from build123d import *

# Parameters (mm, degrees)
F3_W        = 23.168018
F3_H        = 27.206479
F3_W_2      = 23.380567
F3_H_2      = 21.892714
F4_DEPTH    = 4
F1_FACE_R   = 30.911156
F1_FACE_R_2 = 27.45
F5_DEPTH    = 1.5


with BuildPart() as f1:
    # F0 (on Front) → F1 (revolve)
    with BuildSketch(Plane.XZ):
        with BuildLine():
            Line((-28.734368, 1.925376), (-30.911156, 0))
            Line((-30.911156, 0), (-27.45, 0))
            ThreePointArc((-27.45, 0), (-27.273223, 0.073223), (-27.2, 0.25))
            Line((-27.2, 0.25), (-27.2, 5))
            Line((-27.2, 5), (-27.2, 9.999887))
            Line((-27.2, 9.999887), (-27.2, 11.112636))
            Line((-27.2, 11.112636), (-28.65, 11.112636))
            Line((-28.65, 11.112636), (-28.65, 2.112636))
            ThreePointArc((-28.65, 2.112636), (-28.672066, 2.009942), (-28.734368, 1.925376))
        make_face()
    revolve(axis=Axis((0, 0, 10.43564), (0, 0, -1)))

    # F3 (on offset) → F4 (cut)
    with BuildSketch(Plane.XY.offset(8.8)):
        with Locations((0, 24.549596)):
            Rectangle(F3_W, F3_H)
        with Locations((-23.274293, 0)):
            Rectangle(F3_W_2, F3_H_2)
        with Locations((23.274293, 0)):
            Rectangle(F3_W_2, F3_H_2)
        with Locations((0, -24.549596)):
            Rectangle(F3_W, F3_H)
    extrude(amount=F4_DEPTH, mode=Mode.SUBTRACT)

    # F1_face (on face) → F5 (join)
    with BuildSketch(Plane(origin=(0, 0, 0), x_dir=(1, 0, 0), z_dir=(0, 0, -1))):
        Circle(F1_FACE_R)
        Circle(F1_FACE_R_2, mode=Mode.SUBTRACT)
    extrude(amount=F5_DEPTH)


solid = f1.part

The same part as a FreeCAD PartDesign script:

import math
import FreeCAD as App
import Part
import Sketcher
Q = App.Units.Quantity


def add_polygon(sketch, points):
    """Adds a closed chain of lines whose ends are joined by coincident constraints."""
    first, n = sketch.GeometryCount, len(points)
    for a, b in zip(points, points[1:] + points[:1]):
        sketch.addGeometry(Part.LineSegment(App.Vector(*a, 0), App.Vector(*b, 0)), False)
    for i in range(n):
        sketch.addConstraint(Sketcher.Constraint("Coincident", first + i, 2, first + (i + 1) % n, 1))

doc = App.newDocument("Part")
params = doc.addObject("Spreadsheet::Sheet", "Params")
for row, (alias, value) in enumerate([
    ("sketch1_height", "9 mm"),
    ("sketch1_radius", "0.249999 mm"),
    ("sketch1_width", "1.45 mm"),
    ("revolution_angle", "360 deg"),
    ("pocket1_length", "4 mm"),
    ("sketch3_diameter", "54.9 mm"),
    ("pad1_length", "1.5 mm"),
], start=1):
    params.set(f"A{row}", alias)
    params.set(f"B{row}", "=" + value)
    params.setAlias(f"B{row}", alias)

body = doc.addObject("PartDesign::Body", "Body")

sketch1 = body.newObject("Sketcher::SketchObject", "Sketch")
sketch1.AttachmentSupport = (doc.getObject("XZ_Plane"), [""])
sketch1.MapMode = "FlatFace"
sketch1.addGeometry([
    Part.LineSegment(App.Vector(-28.734368, 1.925376, 0), App.Vector(-30.911156, 0, 0)),
    Part.LineSegment(App.Vector(-30.911156, 0, 0), App.Vector(-27.45, 0, 0)),
    Part.ArcOfCircle(Part.Circle(App.Vector(-27.449999, 0.249999, 0), App.Vector(0, 0, 1), 0.249999), math.radians(-90.000238), math.radians(0.000238)),
    Part.LineSegment(App.Vector(-27.2, 0.25, 0), App.Vector(-27.2, 11.112636, 0)),
    Part.LineSegment(App.Vector(-27.2, 11.112636, 0), App.Vector(-28.65, 11.112636, 0)),
    Part.LineSegment(App.Vector(-28.65, 11.112636, 0), App.Vector(-28.65, 2.112636, 0)),
    Part.ArcOfCircle(Part.Circle(App.Vector(-28.900004, 2.112637, 0), App.Vector(0, 0, 1), 0.250004), math.radians(-48.506657), math.radians(-0.000222)),
], False)
sketch1.addConstraint([
    Sketcher.Constraint("Coincident", 0, 2, 1, 1),
    Sketcher.Constraint("Coincident", 1, 2, 2, 1),
    Sketcher.Constraint("Coincident", 2, 2, 3, 1),
    Sketcher.Constraint("Coincident", 3, 2, 4, 1),
    Sketcher.Constraint("Coincident", 4, 2, 5, 1),
    Sketcher.Constraint("Coincident", 5, 2, 6, 2),
    Sketcher.Constraint("Coincident", 6, 1, 0, 1),
    Sketcher.Constraint("Horizontal", 1),
    Sketcher.Constraint("Vertical", 3),
    Sketcher.Constraint("Horizontal", 4),
    Sketcher.Constraint("Vertical", 5),
    Sketcher.Constraint("PointOnObject", 0, 2, -1),
    Sketcher.Constraint("Horizontal", 6, 3, 5, 2),
    Sketcher.Constraint("Vertical", 2, 3, 1, 2),
    Sketcher.Constraint("DistanceY", 5, 2, 5, 1, Q("9 mm")),
    Sketcher.Constraint("Radius", 2, Q("0.249999 mm")),
    Sketcher.Constraint("DistanceX", 4, 2, 4, 1, Q("1.45 mm")),
    Sketcher.Constraint("DistanceX", 2, 2, -1, 1, Q("27.2 mm")),
    Sketcher.Constraint("DistanceY", -1, 1, 2, 2, Q("0.25 mm")),
    Sketcher.Constraint("Radius", 6, Q("0.250004 mm")),
    Sketcher.Constraint("Distance", 0, Q("2.906111 mm")),
    Sketcher.Constraint("DistanceX", 1, 1, 1, 2, Q("3.461156 mm")),
    Sketcher.Constraint("DistanceY", 3, 1, 3, 2, Q("10.862636 mm")),
])
sketch1.setExpression("Constraints[14]", "Params.sketch1_height")
sketch1.setExpression("Constraints[15]", "Params.sketch1_radius")
sketch1.setExpression("Constraints[16]", "Params.sketch1_width")
revolution = body.newObject("PartDesign::Revolution", "Revolution")
revolution.Profile = sketch1
revolution.ReferenceAxis = (sketch1, ["V_Axis"])
revolution.setExpression("Angle", "Params.revolution_angle")

sketch2 = body.newObject("Sketcher::SketchObject", "Sketch001")
sketch2.AttachmentSupport = (doc.getObject("XY_Plane"), [""])
sketch2.MapMode = "FlatFace"
sketch2.AttachmentOffset = App.Placement(App.Vector(0, 0, 8.8), App.Rotation())
add_polygon(sketch2, [(-11.584009, 38.152836), (-11.584009, 10.946357), (11.584009, 10.946357), (11.584009, 38.152836)])
add_polygon(sketch2, [(-34.964576, 10.946357), (-34.964576, -10.946357), (-11.58401, -10.946357), (-11.58401, 10.946357)])
add_polygon(sketch2, [(11.58401, 10.946357), (11.58401, -10.946357), (34.964576, -10.946357), (34.964576, 10.946357)])
add_polygon(sketch2, [(-11.584009, -10.946357), (-11.584009, -38.152836), (11.584009, -38.152836), (11.584009, -10.946357)])
sketch2.addConstraint([
    Sketcher.Constraint("Vertical", 0),
    Sketcher.Constraint("Horizontal", 1),
    Sketcher.Constraint("Vertical", 2),
    Sketcher.Constraint("Horizontal", 3),
    Sketcher.Constraint("Vertical", 4),
    Sketcher.Constraint("Horizontal", 5),
    Sketcher.Constraint("Vertical", 6),
    Sketcher.Constraint("Horizontal", 7),
    Sketcher.Constraint("Vertical", 8),
    Sketcher.Constraint("Horizontal", 9),
    Sketcher.Constraint("Vertical", 10),
    Sketcher.Constraint("Horizontal", 11),
    Sketcher.Constraint("Vertical", 12),
    Sketcher.Constraint("Horizontal", 13),
    Sketcher.Constraint("Vertical", 14),
    Sketcher.Constraint("Horizontal", 15),
    Sketcher.Constraint("Coincident", 6, 2, 0, 2),
    Sketcher.Constraint("Coincident", 11, 2, 1, 2),
    Sketcher.Constraint("Coincident", 14, 2, 8, 2),
    Sketcher.Constraint("Coincident", 15, 2, 5, 2),
    Sketcher.Constraint("Symmetric", 1, 2, 5, 2, -1, 1),
    Sketcher.Constraint("Equal", 7, 9),
    Sketcher.Constraint("Equal", 2, 12),
    Sketcher.Constraint("DistanceX", 1, 1, 1, 2, Q("23.168018 mm")),
    Sketcher.Constraint("DistanceY", 0, 2, 0, 1, Q("27.206479 mm")),
    Sketcher.Constraint("DistanceX", 5, 1, 5, 2, Q("23.380567 mm")),
    Sketcher.Constraint("DistanceY", 4, 2, 4, 1, Q("21.892714 mm")),
])
pocket1 = body.newObject("PartDesign::Pocket", "Pocket")
pocket1.Profile = sketch2
pocket1.setExpression("Length", "Params.pocket1_length")
pocket1.Reversed = True

sketch3 = body.newObject("Sketcher::SketchObject", "Sketch002")
sketch3.AttachmentSupport = (doc.getObject("XY_Plane"), [""])
sketch3.MapMode = "FlatFace"
sketch3.addGeometry([
    Part.Circle(App.Vector(0, 0, 0), App.Vector(0, 0, 1), 30.911156),
    Part.Circle(App.Vector(0, 0, 0), App.Vector(0, 0, 1), 27.45),
], False)
sketch3.addConstraint([
    Sketcher.Constraint("Coincident", 0, 3, -1, 1),
    Sketcher.Constraint("Coincident", 1, 3, -1, 1),
    Sketcher.Constraint("Diameter", 1, Q("54.9 mm")),
    Sketcher.Constraint("Diameter", 0, Q("61.822312 mm")),
])
sketch3.setExpression("Constraints[2]", "Params.sketch3_diameter")
pad1 = body.newObject("PartDesign::Pad", "Pad")
pad1.Profile = sketch3
pad1.setExpression("Length", "Params.pad1_length")
pad1.Reversed = True

doc.recompute()
